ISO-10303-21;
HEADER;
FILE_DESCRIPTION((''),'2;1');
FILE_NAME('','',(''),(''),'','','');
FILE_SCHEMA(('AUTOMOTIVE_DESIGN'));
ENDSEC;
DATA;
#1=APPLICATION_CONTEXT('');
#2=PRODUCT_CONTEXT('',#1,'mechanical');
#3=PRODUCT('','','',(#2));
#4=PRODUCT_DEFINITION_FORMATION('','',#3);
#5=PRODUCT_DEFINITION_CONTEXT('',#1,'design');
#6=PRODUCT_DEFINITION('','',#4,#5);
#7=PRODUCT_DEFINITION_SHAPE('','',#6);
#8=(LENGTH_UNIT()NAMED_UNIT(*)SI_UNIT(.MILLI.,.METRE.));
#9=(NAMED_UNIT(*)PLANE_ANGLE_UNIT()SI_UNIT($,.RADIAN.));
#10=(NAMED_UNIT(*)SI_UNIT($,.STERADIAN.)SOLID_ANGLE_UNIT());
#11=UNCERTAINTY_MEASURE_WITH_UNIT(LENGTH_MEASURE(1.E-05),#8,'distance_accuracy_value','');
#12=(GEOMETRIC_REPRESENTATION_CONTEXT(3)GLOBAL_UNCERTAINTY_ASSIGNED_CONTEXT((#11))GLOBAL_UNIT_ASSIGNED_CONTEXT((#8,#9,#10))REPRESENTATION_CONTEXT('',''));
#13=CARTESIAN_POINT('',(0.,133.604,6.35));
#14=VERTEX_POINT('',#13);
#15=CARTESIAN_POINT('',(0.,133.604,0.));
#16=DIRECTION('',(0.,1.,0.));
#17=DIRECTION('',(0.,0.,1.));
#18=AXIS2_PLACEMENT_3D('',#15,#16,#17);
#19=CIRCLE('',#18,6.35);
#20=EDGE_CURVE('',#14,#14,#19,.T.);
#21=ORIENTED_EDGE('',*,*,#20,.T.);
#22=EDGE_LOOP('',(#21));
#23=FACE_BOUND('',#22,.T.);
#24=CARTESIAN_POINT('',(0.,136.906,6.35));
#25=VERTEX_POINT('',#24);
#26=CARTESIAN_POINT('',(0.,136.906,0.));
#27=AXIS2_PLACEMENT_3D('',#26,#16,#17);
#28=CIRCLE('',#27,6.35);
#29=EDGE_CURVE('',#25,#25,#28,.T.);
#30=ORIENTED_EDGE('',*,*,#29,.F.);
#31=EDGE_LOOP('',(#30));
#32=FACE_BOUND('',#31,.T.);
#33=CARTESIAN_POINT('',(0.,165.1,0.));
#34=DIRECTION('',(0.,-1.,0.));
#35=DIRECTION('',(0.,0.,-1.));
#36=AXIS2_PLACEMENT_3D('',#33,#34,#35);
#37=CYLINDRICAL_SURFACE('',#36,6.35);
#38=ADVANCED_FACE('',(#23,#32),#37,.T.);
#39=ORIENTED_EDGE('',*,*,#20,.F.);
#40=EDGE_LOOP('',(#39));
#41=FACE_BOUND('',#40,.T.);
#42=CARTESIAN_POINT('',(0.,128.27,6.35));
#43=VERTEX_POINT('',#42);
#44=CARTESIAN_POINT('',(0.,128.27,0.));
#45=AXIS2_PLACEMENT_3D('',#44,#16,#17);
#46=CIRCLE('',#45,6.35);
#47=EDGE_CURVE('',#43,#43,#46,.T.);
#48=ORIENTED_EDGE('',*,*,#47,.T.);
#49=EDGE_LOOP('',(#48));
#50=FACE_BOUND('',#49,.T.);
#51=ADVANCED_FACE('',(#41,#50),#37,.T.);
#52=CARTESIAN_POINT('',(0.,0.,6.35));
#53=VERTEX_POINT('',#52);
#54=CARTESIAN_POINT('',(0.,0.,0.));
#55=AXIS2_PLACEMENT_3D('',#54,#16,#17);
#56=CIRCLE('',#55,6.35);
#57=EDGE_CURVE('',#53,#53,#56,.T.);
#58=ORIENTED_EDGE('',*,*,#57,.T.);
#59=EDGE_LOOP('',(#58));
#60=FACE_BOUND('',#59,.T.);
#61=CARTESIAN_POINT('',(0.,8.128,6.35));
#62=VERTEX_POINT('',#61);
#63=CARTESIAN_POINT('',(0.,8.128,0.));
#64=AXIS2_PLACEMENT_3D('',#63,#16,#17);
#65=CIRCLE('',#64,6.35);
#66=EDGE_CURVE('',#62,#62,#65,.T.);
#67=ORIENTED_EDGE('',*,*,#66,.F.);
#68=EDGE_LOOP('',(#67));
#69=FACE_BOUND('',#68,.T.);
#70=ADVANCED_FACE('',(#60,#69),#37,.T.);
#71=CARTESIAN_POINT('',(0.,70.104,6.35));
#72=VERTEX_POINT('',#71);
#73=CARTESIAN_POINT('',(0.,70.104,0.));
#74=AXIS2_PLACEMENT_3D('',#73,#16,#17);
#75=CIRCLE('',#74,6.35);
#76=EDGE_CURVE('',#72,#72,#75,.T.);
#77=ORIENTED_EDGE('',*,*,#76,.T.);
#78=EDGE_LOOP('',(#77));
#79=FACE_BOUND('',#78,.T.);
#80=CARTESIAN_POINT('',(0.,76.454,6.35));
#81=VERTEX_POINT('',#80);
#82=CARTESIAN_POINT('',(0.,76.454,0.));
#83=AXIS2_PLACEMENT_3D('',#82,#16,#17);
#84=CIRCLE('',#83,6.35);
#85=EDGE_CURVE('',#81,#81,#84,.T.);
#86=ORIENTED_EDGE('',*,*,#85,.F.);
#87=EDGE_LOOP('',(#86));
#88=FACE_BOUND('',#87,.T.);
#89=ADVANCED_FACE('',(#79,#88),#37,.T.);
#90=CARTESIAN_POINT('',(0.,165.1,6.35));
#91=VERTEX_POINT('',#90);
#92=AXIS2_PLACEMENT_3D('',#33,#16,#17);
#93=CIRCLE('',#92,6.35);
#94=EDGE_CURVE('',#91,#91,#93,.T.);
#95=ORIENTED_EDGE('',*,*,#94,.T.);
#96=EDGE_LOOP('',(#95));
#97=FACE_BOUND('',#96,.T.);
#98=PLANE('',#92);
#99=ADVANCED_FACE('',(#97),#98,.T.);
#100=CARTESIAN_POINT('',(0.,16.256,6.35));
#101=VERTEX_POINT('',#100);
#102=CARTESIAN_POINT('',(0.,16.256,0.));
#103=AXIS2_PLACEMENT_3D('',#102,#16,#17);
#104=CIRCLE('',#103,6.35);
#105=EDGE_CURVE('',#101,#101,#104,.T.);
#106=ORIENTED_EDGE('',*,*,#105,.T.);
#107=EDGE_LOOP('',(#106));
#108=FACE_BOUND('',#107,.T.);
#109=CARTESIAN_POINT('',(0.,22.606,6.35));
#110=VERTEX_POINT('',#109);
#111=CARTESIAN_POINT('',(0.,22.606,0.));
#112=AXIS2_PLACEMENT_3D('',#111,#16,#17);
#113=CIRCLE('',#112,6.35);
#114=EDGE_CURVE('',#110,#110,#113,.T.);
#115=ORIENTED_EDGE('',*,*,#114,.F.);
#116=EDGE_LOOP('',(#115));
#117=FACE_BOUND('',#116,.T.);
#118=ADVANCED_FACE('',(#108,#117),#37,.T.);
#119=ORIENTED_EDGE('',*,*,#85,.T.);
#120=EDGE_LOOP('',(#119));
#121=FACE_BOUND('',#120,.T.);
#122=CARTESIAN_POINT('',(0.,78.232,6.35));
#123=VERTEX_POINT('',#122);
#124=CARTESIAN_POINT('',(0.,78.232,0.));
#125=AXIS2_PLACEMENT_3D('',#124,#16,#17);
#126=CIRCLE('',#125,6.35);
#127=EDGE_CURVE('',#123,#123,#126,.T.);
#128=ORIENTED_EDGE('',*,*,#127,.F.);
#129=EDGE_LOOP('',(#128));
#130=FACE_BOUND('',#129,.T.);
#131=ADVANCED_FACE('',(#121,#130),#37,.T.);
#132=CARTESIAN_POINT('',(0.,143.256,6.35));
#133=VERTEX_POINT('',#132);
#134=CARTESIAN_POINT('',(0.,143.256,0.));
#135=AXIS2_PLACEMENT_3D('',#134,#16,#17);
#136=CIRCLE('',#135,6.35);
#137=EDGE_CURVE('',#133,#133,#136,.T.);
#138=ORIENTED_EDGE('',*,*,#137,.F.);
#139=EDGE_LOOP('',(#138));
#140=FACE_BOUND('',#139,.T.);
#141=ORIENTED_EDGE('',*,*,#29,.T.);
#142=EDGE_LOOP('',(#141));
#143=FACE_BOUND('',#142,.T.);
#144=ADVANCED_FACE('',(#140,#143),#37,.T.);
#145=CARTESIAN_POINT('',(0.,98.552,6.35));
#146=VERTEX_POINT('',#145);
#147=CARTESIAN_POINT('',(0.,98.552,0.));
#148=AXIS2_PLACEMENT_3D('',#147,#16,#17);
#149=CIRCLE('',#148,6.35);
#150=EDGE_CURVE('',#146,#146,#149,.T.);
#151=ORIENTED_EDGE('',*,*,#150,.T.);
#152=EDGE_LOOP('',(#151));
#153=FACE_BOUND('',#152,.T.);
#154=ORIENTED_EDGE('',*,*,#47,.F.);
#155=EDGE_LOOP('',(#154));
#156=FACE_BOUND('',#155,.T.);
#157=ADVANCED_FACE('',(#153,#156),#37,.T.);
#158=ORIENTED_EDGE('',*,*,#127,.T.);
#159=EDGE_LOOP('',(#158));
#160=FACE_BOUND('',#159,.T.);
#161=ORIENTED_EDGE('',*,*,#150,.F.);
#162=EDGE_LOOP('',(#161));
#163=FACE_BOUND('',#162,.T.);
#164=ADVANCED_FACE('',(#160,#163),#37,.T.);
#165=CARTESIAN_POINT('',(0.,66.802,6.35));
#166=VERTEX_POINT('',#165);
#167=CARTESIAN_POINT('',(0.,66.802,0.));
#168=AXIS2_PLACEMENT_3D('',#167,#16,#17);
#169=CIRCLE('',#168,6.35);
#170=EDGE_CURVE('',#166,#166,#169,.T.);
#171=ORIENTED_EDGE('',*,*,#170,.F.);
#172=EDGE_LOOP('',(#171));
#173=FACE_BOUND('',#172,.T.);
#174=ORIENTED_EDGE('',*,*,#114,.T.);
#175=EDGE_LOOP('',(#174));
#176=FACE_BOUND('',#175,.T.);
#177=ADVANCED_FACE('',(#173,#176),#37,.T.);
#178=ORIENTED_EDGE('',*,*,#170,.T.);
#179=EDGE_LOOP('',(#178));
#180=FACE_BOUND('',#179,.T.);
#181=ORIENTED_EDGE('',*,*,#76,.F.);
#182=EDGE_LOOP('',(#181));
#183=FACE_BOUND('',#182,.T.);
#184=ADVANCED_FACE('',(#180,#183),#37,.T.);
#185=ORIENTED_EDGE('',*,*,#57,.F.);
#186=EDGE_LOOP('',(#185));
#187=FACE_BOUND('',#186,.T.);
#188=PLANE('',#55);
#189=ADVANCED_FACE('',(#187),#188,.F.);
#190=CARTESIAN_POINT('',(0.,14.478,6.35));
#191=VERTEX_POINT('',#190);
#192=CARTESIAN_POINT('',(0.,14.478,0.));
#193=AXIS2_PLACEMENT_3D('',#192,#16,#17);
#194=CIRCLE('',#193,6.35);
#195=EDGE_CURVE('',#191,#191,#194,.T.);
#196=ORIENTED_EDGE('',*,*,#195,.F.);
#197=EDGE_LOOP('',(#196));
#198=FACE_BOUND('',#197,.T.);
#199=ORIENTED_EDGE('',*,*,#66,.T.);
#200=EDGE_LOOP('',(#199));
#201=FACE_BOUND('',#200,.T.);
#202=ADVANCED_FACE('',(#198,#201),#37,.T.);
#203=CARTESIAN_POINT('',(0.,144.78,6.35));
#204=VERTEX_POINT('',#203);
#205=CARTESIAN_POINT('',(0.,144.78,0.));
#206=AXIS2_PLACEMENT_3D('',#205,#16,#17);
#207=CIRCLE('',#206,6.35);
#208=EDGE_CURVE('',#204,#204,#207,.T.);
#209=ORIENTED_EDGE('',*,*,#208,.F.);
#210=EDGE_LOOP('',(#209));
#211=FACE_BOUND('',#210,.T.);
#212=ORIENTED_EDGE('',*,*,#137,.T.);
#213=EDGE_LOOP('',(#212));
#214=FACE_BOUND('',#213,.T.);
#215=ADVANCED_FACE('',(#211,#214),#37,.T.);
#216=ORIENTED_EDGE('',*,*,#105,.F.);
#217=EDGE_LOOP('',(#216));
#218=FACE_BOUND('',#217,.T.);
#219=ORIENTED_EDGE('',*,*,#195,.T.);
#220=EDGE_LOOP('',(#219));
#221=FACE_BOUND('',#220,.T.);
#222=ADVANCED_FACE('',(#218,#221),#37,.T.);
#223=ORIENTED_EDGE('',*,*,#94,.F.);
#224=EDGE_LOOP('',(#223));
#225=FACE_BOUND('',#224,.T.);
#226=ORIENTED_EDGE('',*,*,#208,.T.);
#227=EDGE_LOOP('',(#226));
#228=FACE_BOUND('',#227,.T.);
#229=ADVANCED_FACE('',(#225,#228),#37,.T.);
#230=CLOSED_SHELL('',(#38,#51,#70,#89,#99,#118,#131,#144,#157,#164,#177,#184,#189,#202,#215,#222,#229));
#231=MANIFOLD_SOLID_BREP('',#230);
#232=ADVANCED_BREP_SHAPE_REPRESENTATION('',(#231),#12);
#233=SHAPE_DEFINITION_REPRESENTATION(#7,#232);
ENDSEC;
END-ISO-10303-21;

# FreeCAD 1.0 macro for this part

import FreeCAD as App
import Part
import Sketcher
Q = App.Units.Quantity

doc = App.newDocument("Part")
body = doc.addObject("PartDesign::Body", "Body")

# Sketch on XZ plane
sketch1 = body.newObject("Sketcher::SketchObject", "Sketch")
sketch1.AttachmentSupport = (doc.getObject("XZ_Plane"), [""])
sketch1.MapMode = "FlatFace"
sketch1.addGeometry(Part.Circle(App.Vector(0, 0, 0), App.Vector(0, 0, 1), 6), False)
sketch1.addConstraint(Sketcher.Constraint("Coincident", 0, 3, -1, 1))
sketch1.addConstraint(Sketcher.Constraint("Diameter", 0, Q("0.5 in")))
pad1 = body.newObject("PartDesign::Pad", "Pad")
pad1.Profile = sketch1
pad1.Length = Q("6.5 in")
pad1.Reversed = True

doc.recompute()
